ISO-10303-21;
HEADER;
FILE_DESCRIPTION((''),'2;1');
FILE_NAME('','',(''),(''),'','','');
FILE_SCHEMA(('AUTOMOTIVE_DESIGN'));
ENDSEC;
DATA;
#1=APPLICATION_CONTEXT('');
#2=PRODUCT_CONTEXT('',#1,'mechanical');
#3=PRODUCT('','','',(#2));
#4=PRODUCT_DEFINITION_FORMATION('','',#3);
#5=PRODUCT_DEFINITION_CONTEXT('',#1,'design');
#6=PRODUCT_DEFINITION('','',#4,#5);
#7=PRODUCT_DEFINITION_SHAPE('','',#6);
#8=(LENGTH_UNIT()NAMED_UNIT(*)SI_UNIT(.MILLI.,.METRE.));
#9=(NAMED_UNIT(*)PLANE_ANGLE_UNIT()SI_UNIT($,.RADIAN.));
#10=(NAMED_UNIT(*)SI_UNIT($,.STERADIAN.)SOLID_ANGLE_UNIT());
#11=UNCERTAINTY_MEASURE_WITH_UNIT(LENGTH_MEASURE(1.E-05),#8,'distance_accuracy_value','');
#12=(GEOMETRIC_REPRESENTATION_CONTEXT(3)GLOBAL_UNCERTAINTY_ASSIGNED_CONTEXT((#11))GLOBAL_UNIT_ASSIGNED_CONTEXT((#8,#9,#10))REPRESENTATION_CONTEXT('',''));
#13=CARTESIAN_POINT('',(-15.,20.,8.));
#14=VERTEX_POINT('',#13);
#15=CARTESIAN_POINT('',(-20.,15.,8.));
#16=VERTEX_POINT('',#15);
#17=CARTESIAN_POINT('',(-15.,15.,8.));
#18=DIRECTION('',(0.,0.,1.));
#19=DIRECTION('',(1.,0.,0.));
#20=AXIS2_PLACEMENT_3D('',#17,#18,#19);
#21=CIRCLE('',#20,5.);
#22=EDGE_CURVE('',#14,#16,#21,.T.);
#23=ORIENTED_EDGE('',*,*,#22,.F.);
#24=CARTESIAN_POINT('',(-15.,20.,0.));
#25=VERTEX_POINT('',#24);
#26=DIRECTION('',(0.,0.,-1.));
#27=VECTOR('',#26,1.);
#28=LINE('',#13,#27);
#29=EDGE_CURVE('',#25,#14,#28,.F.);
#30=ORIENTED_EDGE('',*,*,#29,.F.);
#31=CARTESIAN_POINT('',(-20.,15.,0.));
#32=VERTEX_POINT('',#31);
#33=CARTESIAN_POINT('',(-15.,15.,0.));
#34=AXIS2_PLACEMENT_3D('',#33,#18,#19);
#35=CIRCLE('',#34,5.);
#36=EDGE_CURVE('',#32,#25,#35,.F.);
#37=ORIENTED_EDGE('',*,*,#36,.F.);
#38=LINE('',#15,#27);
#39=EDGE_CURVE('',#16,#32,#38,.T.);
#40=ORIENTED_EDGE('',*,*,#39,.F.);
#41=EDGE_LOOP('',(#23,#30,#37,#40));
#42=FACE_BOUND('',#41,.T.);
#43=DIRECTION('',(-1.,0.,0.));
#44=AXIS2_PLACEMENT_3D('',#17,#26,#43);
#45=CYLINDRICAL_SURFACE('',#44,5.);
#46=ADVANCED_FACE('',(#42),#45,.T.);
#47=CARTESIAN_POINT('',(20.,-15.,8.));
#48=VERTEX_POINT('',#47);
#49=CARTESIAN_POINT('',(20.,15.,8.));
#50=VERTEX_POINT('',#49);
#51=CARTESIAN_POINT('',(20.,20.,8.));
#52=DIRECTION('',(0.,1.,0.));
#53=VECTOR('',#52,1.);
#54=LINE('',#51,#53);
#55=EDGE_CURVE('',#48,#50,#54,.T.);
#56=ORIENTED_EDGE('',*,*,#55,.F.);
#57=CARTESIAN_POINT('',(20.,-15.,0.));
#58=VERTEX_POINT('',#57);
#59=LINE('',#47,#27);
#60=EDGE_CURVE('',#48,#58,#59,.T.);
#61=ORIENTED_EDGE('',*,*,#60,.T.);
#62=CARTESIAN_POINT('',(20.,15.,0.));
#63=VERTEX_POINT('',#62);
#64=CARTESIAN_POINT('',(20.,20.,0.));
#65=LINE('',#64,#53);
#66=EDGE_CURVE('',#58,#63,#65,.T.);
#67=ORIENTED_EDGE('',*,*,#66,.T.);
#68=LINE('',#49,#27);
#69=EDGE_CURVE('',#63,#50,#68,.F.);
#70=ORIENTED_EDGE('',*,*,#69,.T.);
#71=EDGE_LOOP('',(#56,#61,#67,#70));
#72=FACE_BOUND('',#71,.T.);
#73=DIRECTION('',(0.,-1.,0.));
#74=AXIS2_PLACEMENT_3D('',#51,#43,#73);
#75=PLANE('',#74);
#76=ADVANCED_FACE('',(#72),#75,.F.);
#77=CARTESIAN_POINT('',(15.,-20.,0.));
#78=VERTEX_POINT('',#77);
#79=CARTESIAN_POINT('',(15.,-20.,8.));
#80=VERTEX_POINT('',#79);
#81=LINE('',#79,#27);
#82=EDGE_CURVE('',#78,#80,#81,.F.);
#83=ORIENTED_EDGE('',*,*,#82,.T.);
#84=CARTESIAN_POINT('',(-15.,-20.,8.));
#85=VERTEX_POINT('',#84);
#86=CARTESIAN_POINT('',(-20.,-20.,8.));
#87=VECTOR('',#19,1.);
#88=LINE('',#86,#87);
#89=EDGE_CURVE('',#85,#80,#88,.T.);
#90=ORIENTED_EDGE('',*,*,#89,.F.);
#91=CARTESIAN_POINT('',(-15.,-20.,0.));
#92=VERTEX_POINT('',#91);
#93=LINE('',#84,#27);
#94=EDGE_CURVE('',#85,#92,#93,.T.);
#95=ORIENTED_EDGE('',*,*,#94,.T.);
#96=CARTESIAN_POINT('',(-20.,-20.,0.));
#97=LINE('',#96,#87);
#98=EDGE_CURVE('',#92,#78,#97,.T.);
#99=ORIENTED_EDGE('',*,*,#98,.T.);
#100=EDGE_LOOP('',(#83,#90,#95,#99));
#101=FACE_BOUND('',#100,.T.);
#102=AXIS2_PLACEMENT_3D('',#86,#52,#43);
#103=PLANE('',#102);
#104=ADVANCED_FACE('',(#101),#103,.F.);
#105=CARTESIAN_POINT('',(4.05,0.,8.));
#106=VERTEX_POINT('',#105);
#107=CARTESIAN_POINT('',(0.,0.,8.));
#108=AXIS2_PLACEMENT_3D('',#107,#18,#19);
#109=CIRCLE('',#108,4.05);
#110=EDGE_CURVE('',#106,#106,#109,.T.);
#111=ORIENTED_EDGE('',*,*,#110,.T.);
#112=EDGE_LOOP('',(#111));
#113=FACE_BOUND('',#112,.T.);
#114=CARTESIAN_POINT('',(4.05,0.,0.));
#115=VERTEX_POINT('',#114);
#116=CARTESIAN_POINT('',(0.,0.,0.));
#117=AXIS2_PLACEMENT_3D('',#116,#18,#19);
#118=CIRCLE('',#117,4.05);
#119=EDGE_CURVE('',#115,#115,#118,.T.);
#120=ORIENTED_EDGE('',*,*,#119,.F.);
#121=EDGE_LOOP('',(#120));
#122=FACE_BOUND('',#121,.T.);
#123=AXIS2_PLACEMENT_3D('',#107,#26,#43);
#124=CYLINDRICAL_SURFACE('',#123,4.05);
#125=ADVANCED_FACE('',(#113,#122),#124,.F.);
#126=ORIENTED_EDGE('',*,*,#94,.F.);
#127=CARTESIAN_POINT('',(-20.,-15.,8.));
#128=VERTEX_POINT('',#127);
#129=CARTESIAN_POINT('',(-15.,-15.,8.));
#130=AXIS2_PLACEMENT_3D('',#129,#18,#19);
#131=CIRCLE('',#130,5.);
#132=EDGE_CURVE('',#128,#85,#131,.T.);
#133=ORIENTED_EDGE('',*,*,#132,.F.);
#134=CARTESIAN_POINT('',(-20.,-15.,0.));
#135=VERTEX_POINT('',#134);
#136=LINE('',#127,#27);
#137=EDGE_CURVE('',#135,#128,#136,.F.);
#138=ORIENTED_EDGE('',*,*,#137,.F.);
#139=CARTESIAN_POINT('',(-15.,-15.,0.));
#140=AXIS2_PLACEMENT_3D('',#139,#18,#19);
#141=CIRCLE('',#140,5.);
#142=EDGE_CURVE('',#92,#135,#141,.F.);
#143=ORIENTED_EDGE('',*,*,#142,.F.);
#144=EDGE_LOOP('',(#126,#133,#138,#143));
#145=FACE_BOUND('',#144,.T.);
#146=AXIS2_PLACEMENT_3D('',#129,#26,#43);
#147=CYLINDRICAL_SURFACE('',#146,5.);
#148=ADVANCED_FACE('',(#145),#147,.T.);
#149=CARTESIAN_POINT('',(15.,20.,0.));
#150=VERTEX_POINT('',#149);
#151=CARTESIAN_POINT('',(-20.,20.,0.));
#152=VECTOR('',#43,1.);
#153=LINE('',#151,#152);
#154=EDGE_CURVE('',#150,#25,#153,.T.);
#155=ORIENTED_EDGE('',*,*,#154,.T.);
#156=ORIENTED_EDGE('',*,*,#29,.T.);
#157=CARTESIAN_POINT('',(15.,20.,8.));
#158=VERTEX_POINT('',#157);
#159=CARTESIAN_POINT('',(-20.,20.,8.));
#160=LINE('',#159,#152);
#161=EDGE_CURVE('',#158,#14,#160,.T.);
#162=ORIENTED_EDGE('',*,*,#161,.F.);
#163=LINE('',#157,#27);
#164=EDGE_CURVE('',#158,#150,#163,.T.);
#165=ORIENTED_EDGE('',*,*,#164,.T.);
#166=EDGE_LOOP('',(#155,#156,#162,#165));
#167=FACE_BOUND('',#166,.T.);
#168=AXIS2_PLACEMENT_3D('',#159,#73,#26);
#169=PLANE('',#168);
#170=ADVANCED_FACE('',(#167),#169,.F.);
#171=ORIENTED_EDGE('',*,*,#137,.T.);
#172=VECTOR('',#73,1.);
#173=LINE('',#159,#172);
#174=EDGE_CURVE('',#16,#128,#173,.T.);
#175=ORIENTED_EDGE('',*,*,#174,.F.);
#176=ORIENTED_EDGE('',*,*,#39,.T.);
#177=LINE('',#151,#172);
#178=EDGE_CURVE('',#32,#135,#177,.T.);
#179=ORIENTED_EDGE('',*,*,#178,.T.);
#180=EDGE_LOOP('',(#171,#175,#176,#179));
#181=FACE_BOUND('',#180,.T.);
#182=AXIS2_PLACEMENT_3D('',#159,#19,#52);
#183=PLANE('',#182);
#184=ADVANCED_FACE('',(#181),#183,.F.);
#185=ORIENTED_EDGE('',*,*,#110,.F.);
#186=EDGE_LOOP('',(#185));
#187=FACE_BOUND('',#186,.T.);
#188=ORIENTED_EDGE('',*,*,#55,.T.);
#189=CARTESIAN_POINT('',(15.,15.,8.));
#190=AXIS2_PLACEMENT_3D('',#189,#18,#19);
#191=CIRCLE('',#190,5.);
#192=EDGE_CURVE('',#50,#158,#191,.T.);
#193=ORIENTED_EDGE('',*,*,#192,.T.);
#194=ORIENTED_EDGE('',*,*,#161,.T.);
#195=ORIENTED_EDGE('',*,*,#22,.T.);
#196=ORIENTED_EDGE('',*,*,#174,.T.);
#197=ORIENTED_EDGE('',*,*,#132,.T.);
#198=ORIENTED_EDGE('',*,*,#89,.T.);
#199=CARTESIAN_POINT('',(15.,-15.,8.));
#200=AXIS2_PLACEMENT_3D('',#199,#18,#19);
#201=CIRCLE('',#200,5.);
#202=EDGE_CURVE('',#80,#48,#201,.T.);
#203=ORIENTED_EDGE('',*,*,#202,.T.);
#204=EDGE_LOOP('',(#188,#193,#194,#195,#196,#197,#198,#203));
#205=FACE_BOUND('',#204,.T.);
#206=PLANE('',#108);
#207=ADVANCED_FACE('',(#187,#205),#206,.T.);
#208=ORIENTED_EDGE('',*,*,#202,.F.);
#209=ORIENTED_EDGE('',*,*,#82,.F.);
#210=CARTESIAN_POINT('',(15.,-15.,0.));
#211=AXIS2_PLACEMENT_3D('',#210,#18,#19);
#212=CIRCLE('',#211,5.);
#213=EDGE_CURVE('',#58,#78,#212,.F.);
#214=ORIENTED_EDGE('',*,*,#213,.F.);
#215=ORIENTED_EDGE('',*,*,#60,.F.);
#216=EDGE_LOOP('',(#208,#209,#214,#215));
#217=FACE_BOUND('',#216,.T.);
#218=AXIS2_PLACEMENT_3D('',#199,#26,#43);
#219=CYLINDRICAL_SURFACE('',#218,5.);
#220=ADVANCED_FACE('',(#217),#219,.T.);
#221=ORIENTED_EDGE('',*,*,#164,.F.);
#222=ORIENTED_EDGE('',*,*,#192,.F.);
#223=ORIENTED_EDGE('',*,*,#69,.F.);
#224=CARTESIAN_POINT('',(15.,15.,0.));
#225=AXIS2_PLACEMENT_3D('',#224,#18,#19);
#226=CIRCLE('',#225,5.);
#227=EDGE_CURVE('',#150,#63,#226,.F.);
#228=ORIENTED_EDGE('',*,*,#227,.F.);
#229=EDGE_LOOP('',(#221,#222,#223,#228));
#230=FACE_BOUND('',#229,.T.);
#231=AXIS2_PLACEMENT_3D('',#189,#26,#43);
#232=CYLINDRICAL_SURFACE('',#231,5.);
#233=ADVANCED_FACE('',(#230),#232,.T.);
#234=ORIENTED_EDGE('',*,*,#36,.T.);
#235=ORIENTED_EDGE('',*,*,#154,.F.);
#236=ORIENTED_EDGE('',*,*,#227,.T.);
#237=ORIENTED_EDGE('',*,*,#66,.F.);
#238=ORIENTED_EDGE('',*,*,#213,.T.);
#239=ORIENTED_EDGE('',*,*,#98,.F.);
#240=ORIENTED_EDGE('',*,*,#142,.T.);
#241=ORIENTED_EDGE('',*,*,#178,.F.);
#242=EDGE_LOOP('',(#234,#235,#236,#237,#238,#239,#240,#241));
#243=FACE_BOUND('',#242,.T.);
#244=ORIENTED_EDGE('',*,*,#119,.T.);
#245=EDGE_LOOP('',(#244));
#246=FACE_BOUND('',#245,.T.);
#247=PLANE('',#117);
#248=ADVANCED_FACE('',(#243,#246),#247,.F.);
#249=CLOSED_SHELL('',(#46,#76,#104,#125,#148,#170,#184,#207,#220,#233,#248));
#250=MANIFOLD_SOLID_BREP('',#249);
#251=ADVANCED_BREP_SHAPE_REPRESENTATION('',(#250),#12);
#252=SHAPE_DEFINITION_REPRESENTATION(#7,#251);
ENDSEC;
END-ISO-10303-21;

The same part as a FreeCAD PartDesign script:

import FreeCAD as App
import Part
import Sketcher

V = App.Vector


def edges_at(feature, points):
    """Names of the edges that pass closest to the given points."""
    edges = feature.Shape.Edges
    near = lambda p: min(range(len(edges)), key=lambda i: edges[i].distToShape(Part.Vertex(*p))[0])
    return sorted({f"Edge{near(p) + 1}" for p in points})


def add_polygon(sketch, points):
    """Adds a closed chain of lines whose ends are joined by coincident constraints."""
    first, n = sketch.GeometryCount, len(points)
    for a, b in zip(points, points[1:] + points[:1]):
        sketch.addGeometry(Part.LineSegment(App.Vector(*a, 0), App.Vector(*b, 0)), False)
    for i in range(n):
        sketch.addConstraint(Sketcher.Constraint("Coincident", first + i, 2, first + (i + 1) % n, 1))

doc = App.newDocument("Part")
params = doc.addObject("Spreadsheet::Sheet", "Params")
for row, (alias, value) in enumerate([
    ("sketch1_diameter", "8.1 mm"),
    ("sketch1_width", "40 mm"),
    ("pad1_length", "8 mm"),
    ("fillet_radius", "5 mm"),
], start=1):
    params.set(f"A{row}", alias)
    params.set(f"B{row}", "=" + value)
    params.setAlias(f"B{row}", alias)

body = doc.addObject("PartDesign::Body", "Body")

# Sketch on XY plane
sketch1 = body.newObject("Sketcher::SketchObject", "Sketch")
sketch1.AttachmentSupport = (doc.getObject("XY_Plane"), [""])
sketch1.MapMode = "FlatFace"
add_polygon(sketch1, [(-20, 20), (-20, -20), (20, -20), (20, 20)])  # lines 0-3
sketch1.addGeometry(Part.Circle(V(0, 0, 0), V(0, 0, 1), 4), False)  # 4
sketch1.addConstraint([
    Sketcher.Constraint("Vertical", 0),
    Sketcher.Constraint("Horizontal", 1),
    Sketcher.Constraint("Vertical", 2),
    Sketcher.Constraint("Horizontal", 3),
    Sketcher.Constraint("Coincident", 4, 3, -1, 1),
    Sketcher.Constraint("Symmetric", 0, 2, 2, 2, -1, 1),
    Sketcher.Constraint("Equal", 3, 0),
    Sketcher.Constraint("Diameter", 4, 8.1),
    Sketcher.Constraint("DistanceX", 1, 1, 1, 2, 40.0),
])
sketch1.setExpression("Constraints[11]", "Params.sketch1_diameter")
sketch1.setExpression("Constraints[12]", "Params.sketch1_width")
pad1 = body.newObject("PartDesign::Pad", "Pad")
pad1.Profile = sketch1
pad1.setExpression("Length", "Params.pad1_length")
doc.recompute()

fillet = body.newObject("PartDesign::Fillet", "Fillet")
fillet.Base = (pad1, edges_at(pad1, [
    (20, -20, 4),
    (-20, -20, 4),
    (-20, 20, 4),
    (20, 20, 4),
]))
fillet.setExpression("Radius", "Params.fillet_radius")

doc.recompute()
